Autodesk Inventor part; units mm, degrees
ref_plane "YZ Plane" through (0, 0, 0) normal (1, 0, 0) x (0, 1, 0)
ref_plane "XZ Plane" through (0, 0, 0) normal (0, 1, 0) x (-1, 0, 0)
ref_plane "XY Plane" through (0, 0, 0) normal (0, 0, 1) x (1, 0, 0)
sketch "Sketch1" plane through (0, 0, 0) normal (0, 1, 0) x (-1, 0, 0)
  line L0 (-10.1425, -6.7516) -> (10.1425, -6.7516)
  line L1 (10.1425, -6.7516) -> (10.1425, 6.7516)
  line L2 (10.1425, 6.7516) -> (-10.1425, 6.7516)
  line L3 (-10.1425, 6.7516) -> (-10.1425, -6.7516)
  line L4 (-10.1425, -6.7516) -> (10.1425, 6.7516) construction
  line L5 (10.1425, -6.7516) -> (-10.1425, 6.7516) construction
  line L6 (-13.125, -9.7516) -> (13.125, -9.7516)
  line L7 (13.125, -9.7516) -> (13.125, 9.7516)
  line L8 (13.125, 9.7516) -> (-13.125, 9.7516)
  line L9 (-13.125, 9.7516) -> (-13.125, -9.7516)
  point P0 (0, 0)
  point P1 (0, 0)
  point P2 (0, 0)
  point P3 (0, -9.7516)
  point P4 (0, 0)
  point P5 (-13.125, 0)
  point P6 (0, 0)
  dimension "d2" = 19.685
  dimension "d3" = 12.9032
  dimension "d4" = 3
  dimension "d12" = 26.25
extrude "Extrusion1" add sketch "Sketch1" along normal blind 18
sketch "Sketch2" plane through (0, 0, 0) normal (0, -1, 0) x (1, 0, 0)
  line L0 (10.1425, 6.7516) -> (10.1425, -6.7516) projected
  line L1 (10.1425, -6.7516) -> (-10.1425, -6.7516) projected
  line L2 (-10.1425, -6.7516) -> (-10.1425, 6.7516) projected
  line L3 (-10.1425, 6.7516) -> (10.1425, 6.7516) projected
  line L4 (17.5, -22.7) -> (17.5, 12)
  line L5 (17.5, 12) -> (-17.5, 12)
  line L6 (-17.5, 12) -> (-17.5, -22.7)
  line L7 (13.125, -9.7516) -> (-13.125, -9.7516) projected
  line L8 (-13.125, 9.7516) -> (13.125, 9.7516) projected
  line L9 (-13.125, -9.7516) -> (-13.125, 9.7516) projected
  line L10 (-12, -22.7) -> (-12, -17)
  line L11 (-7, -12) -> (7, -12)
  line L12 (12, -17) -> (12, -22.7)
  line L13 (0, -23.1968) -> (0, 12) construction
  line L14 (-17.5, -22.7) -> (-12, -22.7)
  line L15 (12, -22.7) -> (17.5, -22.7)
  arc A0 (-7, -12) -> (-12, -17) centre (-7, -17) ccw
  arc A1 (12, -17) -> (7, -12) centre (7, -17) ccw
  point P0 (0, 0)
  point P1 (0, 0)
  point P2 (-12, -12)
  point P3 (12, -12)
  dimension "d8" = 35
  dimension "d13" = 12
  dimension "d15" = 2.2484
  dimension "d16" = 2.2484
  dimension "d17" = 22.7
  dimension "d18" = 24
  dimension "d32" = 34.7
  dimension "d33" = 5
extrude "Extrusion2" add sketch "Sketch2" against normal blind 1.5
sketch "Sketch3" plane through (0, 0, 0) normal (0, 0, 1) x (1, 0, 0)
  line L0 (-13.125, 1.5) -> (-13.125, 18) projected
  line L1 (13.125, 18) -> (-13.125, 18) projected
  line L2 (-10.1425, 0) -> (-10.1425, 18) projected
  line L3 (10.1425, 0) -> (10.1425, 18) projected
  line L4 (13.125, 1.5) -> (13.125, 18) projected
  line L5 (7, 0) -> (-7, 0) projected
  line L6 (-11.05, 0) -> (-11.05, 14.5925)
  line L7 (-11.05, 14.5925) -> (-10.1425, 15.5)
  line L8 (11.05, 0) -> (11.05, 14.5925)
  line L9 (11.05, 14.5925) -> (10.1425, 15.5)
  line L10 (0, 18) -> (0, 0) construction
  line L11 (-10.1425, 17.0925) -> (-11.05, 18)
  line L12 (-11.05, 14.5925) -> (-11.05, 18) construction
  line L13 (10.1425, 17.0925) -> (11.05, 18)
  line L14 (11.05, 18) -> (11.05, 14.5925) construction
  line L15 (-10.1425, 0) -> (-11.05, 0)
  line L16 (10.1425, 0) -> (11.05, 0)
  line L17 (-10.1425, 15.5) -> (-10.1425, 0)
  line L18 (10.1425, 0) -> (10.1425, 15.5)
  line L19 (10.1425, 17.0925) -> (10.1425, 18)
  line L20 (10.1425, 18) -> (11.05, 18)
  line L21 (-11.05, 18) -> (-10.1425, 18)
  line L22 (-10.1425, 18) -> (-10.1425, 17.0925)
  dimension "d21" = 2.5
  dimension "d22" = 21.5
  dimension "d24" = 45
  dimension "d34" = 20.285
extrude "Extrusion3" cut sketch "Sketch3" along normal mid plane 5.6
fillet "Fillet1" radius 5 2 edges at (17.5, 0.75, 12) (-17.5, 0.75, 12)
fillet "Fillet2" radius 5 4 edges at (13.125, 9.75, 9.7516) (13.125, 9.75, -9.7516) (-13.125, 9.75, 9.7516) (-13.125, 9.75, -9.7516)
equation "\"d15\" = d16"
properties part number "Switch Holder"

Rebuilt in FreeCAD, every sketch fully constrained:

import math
import FreeCAD as App
import Part
import Sketcher
from FreeCAD import Vector
Q = App.Units.Quantity


def edges_at(feature, points):
    """Names of the edges that pass closest to the given points."""
    edges = feature.Shape.Edges
    near = lambda p: min(range(len(edges)), key=lambda i: edges[i].distToShape(Part.Vertex(*p))[0])
    return sorted({f"Edge{near(p) + 1}" for p in points})


def add_polygon(sketch, points):
    """Adds a closed chain of lines whose ends are joined by coincident constraints."""
    first, n = sketch.GeometryCount, len(points)
    for a, b in zip(points, points[1:] + points[:1]):
        sketch.addGeometry(Part.LineSegment(App.Vector(*a, 0), App.Vector(*b, 0)), False)
    for i in range(n):
        sketch.addConstraint(Sketcher.Constraint("Coincident", first + i, 2, first + (i + 1) % n, 1))

doc = App.newDocument("Part")
body = doc.addObject("PartDesign::Body", "Body")

sketch1 = body.newObject("Sketcher::SketchObject", "Sketch")
sketch1.AttachmentSupport = (doc.getObject("XZ_Plane"), [""])
sketch1.MapMode = "FlatFace"
add_polygon(sketch1, [(13.125, 9.7516), (13.125, -9.7516), (-13.125, -9.7516), (-13.125, 9.7516)])
add_polygon(sketch1, [(-10.1425, -6.7516), (10.1425, -6.7516), (10.1425, 6.7516), (-10.1425, 6.7516)])
sketch1.addConstraint([
    Sketcher.Constraint("Vertical", 0),
    Sketcher.Constraint("Horizontal", 1),
    Sketcher.Constraint("Vertical", 2),
    Sketcher.Constraint("Horizontal", 3),
    Sketcher.Constraint("Horizontal", 4),
    Sketcher.Constraint("Vertical", 5),
    Sketcher.Constraint("Horizontal", 6),
    Sketcher.Constraint("Vertical", 7),
    Sketcher.Constraint("Symmetric", 0, 2, 2, 2, -1, 1),
    Sketcher.Constraint("Symmetric", 4, 2, 6, 2, -1, 1),
    Sketcher.Constraint("DistanceY", 0, 2, 4, 2, Q("3 mm")),
    Sketcher.Constraint("DistanceX", 1, 2, 1, 1, Q("26.25 mm")),
    Sketcher.Constraint("DistanceX", 4, 1, 4, 2, Q("20.285 mm")),
    Sketcher.Constraint("DistanceY", 0, 2, 0, 1, Q("19.5032 mm")),
])
pad1 = body.newObject("PartDesign::Pad", "Pad")
pad1.Profile = sketch1
pad1.Length = 18
pad1.Reversed = True

sketch2 = body.newObject("Sketcher::SketchObject", "Sketch001")
sketch2.AttachmentSupport = (doc.getObject("XZ_Plane"), [""])
sketch2.MapMode = "FlatFace"
sketch2.addGeometry(Part.LineSegment(Vector(12, -22.7, 0), Vector(17.5, -22.7, 0)), False)
sketch2.addGeometry(Part.LineSegment(Vector(17.5, -22.7, 0), Vector(17.5, 12, 0)), False)
sketch2.addGeometry(Part.LineSegment(Vector(17.5, 12, 0), Vector(-17.5, 12, 0)), False)
sketch2.addGeometry(Part.LineSegment(Vector(-17.5, 12, 0), Vector(-17.5, -22.7, 0)), False)
sketch2.addGeometry(Part.LineSegment(Vector(-17.5, -22.7, 0), Vector(-12, -22.7, 0)), False)
sketch2.addGeometry(Part.LineSegment(Vector(-12, -22.7, 0), Vector(-12, -17, 0)), False)
sketch2.addGeometry(Part.ArcOfCircle(Part.Circle(Vector(-7, -17, 0), Vector(0, 0, 1), 5), math.radians(90), math.radians(180)), False)
sketch2.addGeometry(Part.LineSegment(Vector(-7, -12, 0), Vector(7, -12, 0)), False)
sketch2.addGeometry(Part.ArcOfCircle(Part.Circle(Vector(7, -17, 0), Vector(0, 0, 1), 5), math.radians(0), math.radians(90)), False)
sketch2.addGeometry(Part.LineSegment(Vector(12, -17, 0), Vector(12, -22.7, 0)), False)
add_polygon(sketch2, [(-10.1425, 6.7516), (10.1425, 6.7516), (10.1425, -6.7516), (-10.1425, -6.7516)])
sketch2.addConstraint([
    Sketcher.Constraint("Coincident", 0, 2, 1, 1),
    Sketcher.Constraint("Coincident", 1, 2, 2, 1),
    Sketcher.Constraint("Coincident", 2, 2, 3, 1),
    Sketcher.Constraint("Coincident", 3, 2, 4, 1),
    Sketcher.Constraint("Coincident", 4, 2, 5, 1),
    Sketcher.Constraint("Tangent", 5, 2, 6, 2),
    Sketcher.Constraint("Tangent", 6, 1, 7, 1),
    Sketcher.Constraint("Tangent", 7, 2, 8, 2),
    Sketcher.Constraint("Tangent", 8, 1, 9, 1),
    Sketcher.Constraint("Coincident", 9, 2, 0, 1),
    Sketcher.Constraint("Horizontal", 0),
    Sketcher.Constraint("Vertical", 1),
    Sketcher.Constraint("Horizontal", 2),
    Sketcher.Constraint("Vertical", 3),
    Sketcher.Constraint("Horizontal", 4),
    Sketcher.Constraint("Vertical", 5),
    Sketcher.Constraint("Horizontal", 7),
    Sketcher.Constraint("Vertical", 9),
    Sketcher.Constraint("Horizontal", 10),
    Sketcher.Constraint("Vertical", 11),
    Sketcher.Constraint("Horizontal", 12),
    Sketcher.Constraint("Vertical", 13),
    Sketcher.Constraint("Equal", 6, 8),
    Sketcher.Constraint("Symmetric", 10, 2, 12, 2, -1, 1),
    Sketcher.Constraint("Symmetric", 0, 2, 3, 2, -2),
    Sketcher.Constraint("Equal", 0, 4),
    Sketcher.Constraint("Radius", 6, Q("5 mm")),
    Sketcher.Constraint("DistanceX", 2, 2, 2, 1, Q("35 mm")),
    Sketcher.Constraint("DistanceY", 1, 1, 1, 2, Q("34.7 mm")),
    Sketcher.Constraint("DistanceY", -1, 1, 1, 2, Q("12 mm")),
    Sketcher.Constraint("DistanceX", 4, 2, -1, 1, Q("12 mm")),
    Sketcher.Constraint("DistanceY", 6, 1, -1, 1, Q("12 mm")),
    Sketcher.Constraint("DistanceX", 10, 1, 10, 2, Q("20.285 mm")),
    Sketcher.Constraint("DistanceY", 11, 2, 11, 1, Q("13.5032 mm")),
])
pad2 = body.newObject("PartDesign::Pad", "Pad001")
pad2.Profile = sketch2
pad2.Length = 1.5
pad2.Reversed = True

sketch3 = body.newObject("Sketcher::SketchObject", "Sketch002")
sketch3.AttachmentSupport = (doc.getObject("XY_Plane"), [""])
sketch3.MapMode = "FlatFace"
add_polygon(sketch3, [(10.1425, 17.0925), (11.05, 18), (10.1425, 18)])
add_polygon(sketch3, [(11.05, 14.5925), (10.1425, 15.5), (10.1425, 0), (11.05, 0)])
add_polygon(sketch3, [(-10.1425, 0), (-10.1425, 15.5), (-11.05, 14.5925), (-11.05, 0)])
add_polygon(sketch3, [(-10.1425, 17.0925), (-10.1425, 18), (-11.05, 18)])
sketch3.addConstraint([
    Sketcher.Constraint("Horizontal", 1),
    Sketcher.Constraint("Vertical", 2),
    Sketcher.Constraint("Vertical", 4),
    Sketcher.Constraint("Horizontal", 5),
    Sketcher.Constraint("Vertical", 6),
    Sketcher.Constraint("Vertical", 7),
    Sketcher.Constraint("Vertical", 9),
    Sketcher.Constraint("Horizontal", 10),
    Sketcher.Constraint("Vertical", 11),
    Sketcher.Constraint("Horizontal", 12),
    Sketcher.Constraint("Symmetric", 5, 2, 9, 2, -1, 1),
    Sketcher.Constraint("Symmetric", 3, 2, 7, 2, -2),
    Sketcher.Constraint("Symmetric", 1, 2, 11, 2, -2),
    Sketcher.Constraint("PointOnObject", 4, 2, -1),
    Sketcher.Constraint("Perpendicular", 0, 3),
    Sketcher.Constraint("Perpendicular", 3, 8),
    Sketcher.Constraint("Perpendicular", 8, 13),
    Sketcher.Constraint("Horizontal", 6, 2, 8, 2),
    Sketcher.Constraint("Horizontal", 2, 2, 13, 2),
    Sketcher.Constraint("Vertical", 2, 2, 3, 2),
    Sketcher.Constraint("Vertical", 0, 2, 5, 2),
    Sketcher.Constraint("DistanceY", 3, 2, 1, 2, Q("2.5 mm")),
    Sketcher.Constraint("DistanceY", 4, 2, 4, 1, Q("15.5 mm")),
    Sketcher.Constraint("DistanceX", 7, 2, 3, 2, Q("20.285 mm")),
    Sketcher.Constraint("DistanceX", 8, 2, 6, 2, Q("22.1 mm")),
])
pocket1 = body.newObject("PartDesign::Pocket", "Pocket")
pocket1.Profile = sketch3
pocket1.Length = 5.6
pocket1.Midplane = True
doc.recompute()

fillet = body.newObject("PartDesign::Fillet", "Fillet")
fillet.Base = (pocket1, edges_at(pocket1, [(17.5, 0.75, 12), (-17.5, 0.75, 12)]))
fillet.Radius = 5
doc.recompute()

fillet2 = body.newObject("PartDesign::Fillet", "Fillet001")
fillet2.Base = (fillet, edges_at(fillet, [
    (13.125, 9.75, 9.752),
    (13.125, 9.75, -9.752),
    (-13.125, 9.75, 9.752),
    (-13.125, 9.75, -9.752),
]))
fillet2.Radius = 5

doc.recompute()
